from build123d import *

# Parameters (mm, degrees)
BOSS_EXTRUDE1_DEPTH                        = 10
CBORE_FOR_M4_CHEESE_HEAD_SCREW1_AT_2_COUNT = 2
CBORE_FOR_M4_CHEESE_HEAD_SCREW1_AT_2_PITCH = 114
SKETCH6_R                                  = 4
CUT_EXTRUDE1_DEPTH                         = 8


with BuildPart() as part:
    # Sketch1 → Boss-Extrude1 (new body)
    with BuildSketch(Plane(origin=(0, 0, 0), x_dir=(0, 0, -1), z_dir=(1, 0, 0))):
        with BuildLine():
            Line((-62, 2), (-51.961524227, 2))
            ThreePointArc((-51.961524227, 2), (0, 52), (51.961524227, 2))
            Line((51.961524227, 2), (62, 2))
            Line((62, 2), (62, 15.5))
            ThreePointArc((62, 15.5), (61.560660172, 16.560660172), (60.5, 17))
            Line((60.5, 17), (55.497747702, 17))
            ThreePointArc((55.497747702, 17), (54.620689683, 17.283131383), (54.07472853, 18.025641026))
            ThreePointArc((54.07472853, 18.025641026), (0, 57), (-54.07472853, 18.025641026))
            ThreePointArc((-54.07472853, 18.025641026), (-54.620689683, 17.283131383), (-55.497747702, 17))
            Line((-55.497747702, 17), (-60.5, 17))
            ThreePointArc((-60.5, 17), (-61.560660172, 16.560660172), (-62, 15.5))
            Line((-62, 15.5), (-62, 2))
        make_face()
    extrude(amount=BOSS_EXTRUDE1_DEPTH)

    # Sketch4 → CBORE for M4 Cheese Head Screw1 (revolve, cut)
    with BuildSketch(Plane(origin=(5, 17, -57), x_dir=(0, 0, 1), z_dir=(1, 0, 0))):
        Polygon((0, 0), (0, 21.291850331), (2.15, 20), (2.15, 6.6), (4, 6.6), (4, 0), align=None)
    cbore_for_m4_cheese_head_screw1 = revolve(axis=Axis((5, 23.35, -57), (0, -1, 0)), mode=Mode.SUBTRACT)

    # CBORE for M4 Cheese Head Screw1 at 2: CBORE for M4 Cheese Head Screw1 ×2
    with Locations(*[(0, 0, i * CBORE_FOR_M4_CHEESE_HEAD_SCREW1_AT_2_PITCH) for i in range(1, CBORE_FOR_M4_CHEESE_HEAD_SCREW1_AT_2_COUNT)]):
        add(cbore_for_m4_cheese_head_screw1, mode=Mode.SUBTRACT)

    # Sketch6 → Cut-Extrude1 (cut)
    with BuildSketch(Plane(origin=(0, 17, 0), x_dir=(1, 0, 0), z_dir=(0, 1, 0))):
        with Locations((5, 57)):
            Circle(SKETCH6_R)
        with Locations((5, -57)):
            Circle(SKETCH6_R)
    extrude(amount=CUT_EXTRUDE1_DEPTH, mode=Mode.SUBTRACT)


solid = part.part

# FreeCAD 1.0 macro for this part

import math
import FreeCAD as App
import Part
import Sketcher

V = App.Vector
Q = App.Units.Quantity

doc = App.newDocument("Part")
body = doc.addObject("PartDesign::Body", "Body")

# Sketch on YZ plane
sketch1 = body.newObject("Sketcher::SketchObject", "Sketch")
sketch1.AttachmentSupport = (doc.getObject("YZ_Plane"), [""])
sketch1.MapMode = "FlatFace"
sketch1.addGeometry(Part.LineSegment(V(2, 62, 0), V(2, 52, 0)), False)
sketch1.addGeometry(Part.ArcOfCircle(Part.Circle(V(0, 0, 0), V(0, 0, 1), 52), math.radians(-88), math.radians(88)), False)
sketch1.addGeometry(Part.LineSegment(V(2, -52, 0), V(2, -62, 0)), False)
sketch1.addGeometry(Part.LineSegment(V(2, -62, 0), V(15.5, -62, 0)), False)
sketch1.addGeometry(Part.ArcOfCircle(Part.Circle(V(15.5, -60.5, 0), V(0, 0, 1), 1.5), math.radians(-90), math.radians(0)), False)
sketch1.addGeometry(Part.LineSegment(V(17, -60.5, 0), V(17, -55.5, 0)), False)
sketch1.addGeometry(Part.ArcOfCircle(Part.Circle(V(18.5, -55.5, 0), V(0, 0, 1), 1.5), math.radians(108), math.radians(180)), False)
sketch1.addGeometry(Part.ArcOfCircle(Part.Circle(V(0, 0, 0), V(0, 0, 1), 57), math.radians(-72), math.radians(72)), False)
sketch1.addGeometry(Part.ArcOfCircle(Part.Circle(V(18.5, 55.5, 0), V(0, 0, 1), 1.5), math.radians(180), math.radians(252)), False)
sketch1.addGeometry(Part.LineSegment(V(17, 55.5, 0), V(17, 60.5, 0)), False)
sketch1.addGeometry(Part.ArcOfCircle(Part.Circle(V(15.5, 60.5, 0), V(0, 0, 1), 1.5), math.radians(0), math.radians(90)), False)
sketch1.addGeometry(Part.LineSegment(V(15.5, 62, 0), V(2, 62, 0)), False)
sketch1.addConstraint(Sketcher.Constraint("Coincident", 0, 2, 1, 2))
sketch1.addConstraint(Sketcher.Constraint("Coincident", 1, 1, 2, 1))
sketch1.addConstraint(Sketcher.Constraint("Coincident", 2, 2, 3, 1))
sketch1.addConstraint(Sketcher.Constraint("Tangent", 3, 2, 4, 1))
sketch1.addConstraint(Sketcher.Constraint("Tangent", 4, 2, 5, 1))
sketch1.addConstraint(Sketcher.Constraint("Tangent", 5, 2, 6, 2))
sketch1.addConstraint(Sketcher.Constraint("Tangent", 6, 1, 7, 1))
sketch1.addConstraint(Sketcher.Constraint("Tangent", 7, 2, 8, 2))
sketch1.addConstraint(Sketcher.Constraint("Tangent", 8, 1, 9, 1))
sketch1.addConstraint(Sketcher.Constraint("Tangent", 9, 2, 10, 1))
sketch1.addConstraint(Sketcher.Constraint("Tangent", 10, 2, 11, 1))
sketch1.addConstraint(Sketcher.Constraint("Coincident", 11, 2, 0, 1))
sketch1.addConstraint(Sketcher.Constraint("Vertical", 0))
sketch1.addConstraint(Sketcher.Constraint("Vertical", 2))
sketch1.addConstraint(Sketcher.Constraint("Horizontal", 3))
sketch1.addConstraint(Sketcher.Constraint("Vertical", 5))
sketch1.addConstraint(Sketcher.Constraint("Vertical", 9))
sketch1.addConstraint(Sketcher.Constraint("Horizontal", 11))
sketch1.addConstraint(Sketcher.Constraint("Coincident", 1, 3, -1, 1))
sketch1.addConstraint(Sketcher.Constraint("Coincident", 7, 3, -1, 1))
sketch1.addConstraint(Sketcher.Constraint("Equal", 4, 6))
sketch1.addConstraint(Sketcher.Constraint("Equal", 6, 8))
sketch1.addConstraint(Sketcher.Constraint("Equal", 8, 10))
sketch1.addConstraint(Sketcher.Constraint("Symmetric", 4, 3, 10, 3, -1))
sketch1.addConstraint(Sketcher.Constraint("Vertical", 0, 2, 1, 1))
sketch1.addConstraint(Sketcher.Constraint("Radius", 1, Q("52 mm")))
sketch1.addConstraint(Sketcher.Constraint("Radius", 7, Q("57 mm")))
sketch1.addConstraint(Sketcher.Constraint("Radius", 4, Q("1.5 mm")))
sketch1.addConstraint(Sketcher.Constraint("DistanceX", 3, 1, 3, 2, Q("13.5 mm")))
sketch1.addConstraint(Sketcher.Constraint("DistanceX", -1, 1, 0, 2, Q("2 mm")))
sketch1.addConstraint(Sketcher.Constraint("DistanceY", 2, 2, -1, 1, Q("62 mm")))
pad1 = body.newObject("PartDesign::Pad", "Pad")
pad1.Profile = sketch1
pad1.Length = 10

# Sketch on YZ plane
sketch2 = body.newObject("Sketcher::SketchObject", "Sketch001")
sketch2.AttachmentSupport = (doc.getObject("YZ_Plane"), [""])
sketch2.MapMode = "FlatFace"
sketch2.AttachmentOffset = App.Placement(V(0, 0, 5), App.Rotation())
sketch2.addGeometry(Part.LineSegment(V(-4.3, -57, 0), V(17, -57, 0)), False)
sketch2.addGeometry(Part.LineSegment(V(17, -57, 0), V(17, -53, 0)), False)
sketch2.addGeometry(Part.LineSegment(V(17, -53, 0), V(10.4, -53, 0)), False)
sketch2.addGeometry(Part.LineSegment(V(10.4, -53, 0), V(10.4, -54.9, 0)), False)
sketch2.addGeometry(Part.LineSegment(V(10.4, -54.9, 0), V(-3, -54.9, 0)), False)
sketch2.addGeometry(Part.LineSegment(V(-3, -54.9, 0), V(-4.3, -57, 0)), False)
sketch2.addGeometry(Part.LineSegment(V(17, -57, 0), V(-4.3, -57, 0)), True)  # axis
sketch2.addConstraint(Sketcher.Constraint("Coincident", 0, 2, 1, 1))
sketch2.addConstraint(Sketcher.Constraint("Coincident", 1, 2, 2, 1))
sketch2.addConstraint(Sketcher.Constraint("Coincident", 2, 2, 3, 1))
sketch2.addConstraint(Sketcher.Constraint("Coincident", 3, 2, 4, 1))
sketch2.addConstraint(Sketcher.Constraint("Coincident", 4, 2, 5, 1))
sketch2.addConstraint(Sketcher.Constraint("Coincident", 5, 2, 0, 1))
sketch2.addConstraint(Sketcher.Constraint("Horizontal", 0))
sketch2.addConstraint(Sketcher.Constraint("Vertical", 1))
sketch2.addConstraint(Sketcher.Constraint("Horizontal", 2))
sketch2.addConstraint(Sketcher.Constraint("Vertical", 3))
sketch2.addConstraint(Sketcher.Constraint("Horizontal", 4))
sketch2.addConstraint(Sketcher.Constraint("Horizontal", 6))
sketch2.addConstraint(Sketcher.Constraint("Coincident", 6, 1, 0, 2))
sketch2.addConstraint(Sketcher.Constraint("Equal", 0, 6))
sketch2.addConstraint(Sketcher.Constraint("DistanceY", 1, 1, 1, 2, Q("4 mm")))
sketch2.addConstraint(Sketcher.Constraint("Angle", 5, Q("-121 deg")))
sketch2.addConstraint(Sketcher.Constraint("DistanceX", 2, 2, 2, 1, Q("6.6 mm")))
sketch2.addConstraint(Sketcher.Constraint("DistanceX", 4, 2, 4, 1, Q("13.4 mm")))
sketch2.addConstraint(Sketcher.Constraint("DistanceX", -1, 1, 0, 2, Q("17 mm")))
sketch2.addConstraint(Sketcher.Constraint("DistanceY", 0, 2, -1, 1, Q("57 mm")))
sketch2.addConstraint(Sketcher.Constraint("DistanceY", 3, 2, 3, 1, Q("1.85 mm")))
groove = body.newObject("PartDesign::Groove", "Groove")
groove.Profile = sketch2
groove.ReferenceAxis = (sketch2, ["Axis0"])
groove.Angle = 360
doc.recompute()

linearpattern = body.newObject("PartDesign::LinearPattern", "LinearPattern")
linearpattern.Originals = [groove]
linearpattern.Direction = (doc.getObject("Z_Axis"), [""])
linearpattern.Mode = "offset"
linearpattern.Offset = 114
linearpattern.Occurrences = 2
body.Tip = linearpattern

# Sketch on XZ plane
sketch3 = body.newObject("Sketcher::SketchObject", "Sketch002")
sketch3.AttachmentSupport = (doc.getObject("XZ_Plane"), [""])
sketch3.MapMode = "FlatFace"
sketch3.AttachmentOffset = App.Placement(V(0, 0, -17), App.Rotation())
sketch3.addGeometry(Part.Circle(V(5, -57, 0), V(0, 0, 1), 4), False)
sketch3.addGeometry(Part.Circle(V(5, 57, 0), V(0, 0, 1), 4), False)
sketch3.addConstraint(Sketcher.Constraint("Equal", 0, 1))
sketch3.addConstraint(Sketcher.Constraint("Symmetric", 0, 3, 1, 3, -1))
sketch3.addConstraint(Sketcher.Constraint("Diameter", 0, Q("8 mm")))
sketch3.addConstraint(Sketcher.Constraint("DistanceX", -1, 1, 0, 3, Q("5 mm")))
sketch3.addConstraint(Sketcher.Constraint("DistanceY", 0, 3, -1, 1, Q("57 mm")))
pocket1 = body.newObject("PartDesign::Pocket", "Pocket")
pocket1.Profile = sketch3
pocket1.Length = 8

doc.recompute()
